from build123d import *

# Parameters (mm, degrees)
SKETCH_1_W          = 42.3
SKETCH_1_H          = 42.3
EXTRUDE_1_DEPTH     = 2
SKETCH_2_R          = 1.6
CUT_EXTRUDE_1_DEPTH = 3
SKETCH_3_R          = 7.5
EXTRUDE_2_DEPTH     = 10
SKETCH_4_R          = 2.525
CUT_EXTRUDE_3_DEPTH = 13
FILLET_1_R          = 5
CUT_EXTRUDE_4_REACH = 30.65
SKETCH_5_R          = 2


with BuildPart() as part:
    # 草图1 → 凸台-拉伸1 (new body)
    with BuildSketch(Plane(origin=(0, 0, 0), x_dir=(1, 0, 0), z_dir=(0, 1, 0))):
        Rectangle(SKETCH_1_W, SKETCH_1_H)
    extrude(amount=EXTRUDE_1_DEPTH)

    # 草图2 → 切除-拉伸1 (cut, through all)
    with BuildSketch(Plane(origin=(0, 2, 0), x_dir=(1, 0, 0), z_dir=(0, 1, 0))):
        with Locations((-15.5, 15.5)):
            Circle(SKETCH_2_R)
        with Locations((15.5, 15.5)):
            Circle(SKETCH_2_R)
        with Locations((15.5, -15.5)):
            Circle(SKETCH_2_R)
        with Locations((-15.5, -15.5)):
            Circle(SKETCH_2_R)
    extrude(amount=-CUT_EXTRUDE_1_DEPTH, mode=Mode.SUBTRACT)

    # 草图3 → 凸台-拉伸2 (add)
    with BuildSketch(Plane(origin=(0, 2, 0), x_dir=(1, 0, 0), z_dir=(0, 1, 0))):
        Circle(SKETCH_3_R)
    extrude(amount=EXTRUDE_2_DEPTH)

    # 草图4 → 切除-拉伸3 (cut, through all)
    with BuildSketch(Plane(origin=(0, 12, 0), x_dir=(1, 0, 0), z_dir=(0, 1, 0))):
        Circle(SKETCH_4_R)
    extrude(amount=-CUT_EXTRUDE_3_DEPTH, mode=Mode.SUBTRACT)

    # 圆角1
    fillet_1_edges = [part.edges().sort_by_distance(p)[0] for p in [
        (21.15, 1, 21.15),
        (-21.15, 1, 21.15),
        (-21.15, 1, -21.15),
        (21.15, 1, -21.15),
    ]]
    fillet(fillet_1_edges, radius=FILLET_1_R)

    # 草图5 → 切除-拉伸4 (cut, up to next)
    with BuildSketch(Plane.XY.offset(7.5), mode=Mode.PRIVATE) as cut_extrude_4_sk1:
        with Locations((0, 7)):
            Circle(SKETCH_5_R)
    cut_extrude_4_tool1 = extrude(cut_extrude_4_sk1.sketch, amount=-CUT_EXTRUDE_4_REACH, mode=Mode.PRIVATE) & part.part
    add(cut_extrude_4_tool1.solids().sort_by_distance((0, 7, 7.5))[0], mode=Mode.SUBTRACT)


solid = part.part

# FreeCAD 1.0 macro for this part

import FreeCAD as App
import Part
import Sketcher

V = App.Vector


def edges_at(feature, points):
    """Names of the edges that pass closest to the given points."""
    edges = feature.Shape.Edges
    near = lambda p: min(range(len(edges)), key=lambda i: edges[i].distToShape(Part.Vertex(*p))[0])
    return sorted({f"Edge{near(p) + 1}" for p in points})

doc = App.newDocument("Part")
body = doc.addObject("PartDesign::Body", "Body")

sketch1 = body.newObject("Sketcher::SketchObject", "Sketch")
sketch1.AttachmentSupport = (doc.getObject("XZ_Plane"), [""])
sketch1.MapMode = "FlatFace"
sketch1.addGeometry(Part.LineSegment(V(-21, -21, 0), V(-21, 21, 0)), False)
sketch1.addGeometry(Part.LineSegment(V(-21, 21, 0), V(21, 21, 0)), False)
sketch1.addGeometry(Part.LineSegment(V(21, 21, 0), V(21, -21, 0)), False)
sketch1.addGeometry(Part.LineSegment(V(21, -21, 0), V(-21, -21, 0)), False)
sketch1.addConstraint(Sketcher.Constraint("Coincident", 0, 2, 1, 1))
sketch1.addConstraint(Sketcher.Constraint("Coincident", 1, 2, 2, 1))
sketch1.addConstraint(Sketcher.Constraint("Coincident", 2, 2, 3, 1))
sketch1.addConstraint(Sketcher.Constraint("Coincident", 3, 2, 0, 1))
sketch1.addConstraint(Sketcher.Constraint("Vertical", 0))
sketch1.addConstraint(Sketcher.Constraint("Horizontal", 1))
sketch1.addConstraint(Sketcher.Constraint("Vertical", 2))
sketch1.addConstraint(Sketcher.Constraint("Horizontal", 3))
sketch1.addConstraint(Sketcher.Constraint("Symmetric", 0, 2, 2, 2, -1, 1))
sketch1.addConstraint(Sketcher.Constraint("Equal", 3, 0))
sketch1.addConstraint(Sketcher.Constraint("DistanceX", 1, 1, 1, 2, 42.3))
pad1 = body.newObject("PartDesign::Pad", "Pad")
pad1.Profile = sketch1
pad1.Length = 2
pad1.Reversed = True

sketch2 = body.newObject("Sketcher::SketchObject", "Sketch001")
sketch2.AttachmentSupport = (doc.getObject("XZ_Plane"), [""])
sketch2.MapMode = "FlatFace"
sketch2.AttachmentOffset = App.Placement(V(0, 0, -2), App.Rotation())
sketch2.addGeometry(Part.Circle(V(-15.5, -15.5, 0), V(0, 0, 1), 1.6), False)
sketch2.addGeometry(Part.Circle(V(15.5, -15.5, 0), V(0, 0, 1), 1.6), False)
sketch2.addGeometry(Part.Circle(V(15.5, 15.5, 0), V(0, 0, 1), 1.6), False)
sketch2.addGeometry(Part.Circle(V(-15.5, 15.5, 0), V(0, 0, 1), 1.6), False)
sketch2.addConstraint(Sketcher.Constraint("Equal", 0, 1))
sketch2.addConstraint(Sketcher.Constraint("Equal", 1, 2))
sketch2.addConstraint(Sketcher.Constraint("Equal", 2, 3))
sketch2.addConstraint(Sketcher.Constraint("Symmetric", 0, 3, 2, 3, -1, 1))
sketch2.addConstraint(Sketcher.Constraint("Symmetric", 1, 3, 3, 3, -1, 1))
sketch2.addConstraint(Sketcher.Constraint("Symmetric", 0, 3, 1, 3, -2))
sketch2.addConstraint(Sketcher.Constraint("Diameter", 0, 3.2))
sketch2.addConstraint(Sketcher.Constraint("DistanceX", 0, 3, 1, 3, 31.0))
sketch2.addConstraint(Sketcher.Constraint("DistanceY", 1, 3, 2, 3, 31.0))
pocket1 = body.newObject("PartDesign::Pocket", "Pocket")
pocket1.Profile = sketch2
pocket1.Type = "ThroughAll"
pocket1.Reversed = True

sketch3 = body.newObject("Sketcher::SketchObject", "Sketch002")
sketch3.AttachmentSupport = (doc.getObject("XZ_Plane"), [""])
sketch3.MapMode = "FlatFace"
sketch3.AttachmentOffset = App.Placement(V(0, 0, -2), App.Rotation())
sketch3.addGeometry(Part.Circle(V(0, 0, 0), V(0, 0, 1), 8), False)
sketch3.addConstraint(Sketcher.Constraint("Coincident", 0, 3, -1, 1))
sketch3.addConstraint(Sketcher.Constraint("Diameter", 0, 15.0))
pad2 = body.newObject("PartDesign::Pad", "Pad001")
pad2.Profile = sketch3
pad2.Length = 10
pad2.Reversed = True

sketch4 = body.newObject("Sketcher::SketchObject", "Sketch003")
sketch4.AttachmentSupport = (doc.getObject("XZ_Plane"), [""])
sketch4.MapMode = "FlatFace"
sketch4.AttachmentOffset = App.Placement(V(0, 0, -12), App.Rotation())
sketch4.addGeometry(Part.Circle(V(0, 0, 0), V(0, 0, 1), 2.5), False)
sketch4.addConstraint(Sketcher.Constraint("Coincident", 0, 3, -1, 1))
sketch4.addConstraint(Sketcher.Constraint("Diameter", 0, 5.05))
pocket2 = body.newObject("PartDesign::Pocket", "Pocket001")
pocket2.Profile = sketch4
pocket2.Type = "ThroughAll"
pocket2.Reversed = True
doc.recompute()

fillet = body.newObject("PartDesign::Fillet", "Fillet")
fillet.Base = (pocket2, edges_at(pocket2, [
    (21.15, 1, 21.15),
    (-21.15, 1, 21.15),
    (-21.15, 1, -21.15),
    (21.15, 1, -21.15),
]))
fillet.Radius = 5

sketch5 = body.newObject("Sketcher::SketchObject", "Sketch004")
sketch5.AttachmentSupport = (doc.getObject("XY_Plane"), [""])
sketch5.MapMode = "FlatFace"
sketch5.AttachmentOffset = App.Placement(V(0, 0, 7.5), App.Rotation())
sketch5.addGeometry(Part.Circle(V(0, 7, 0), V(0, 0, 1), 2), False)
sketch5.addConstraint(Sketcher.Constraint("PointOnObject", 0, 3, -2))
sketch5.addConstraint(Sketcher.Constraint("Diameter", 0, 4.0))
sketch5.addConstraint(Sketcher.Constraint("DistanceY", -1, 1, 0, 3, 7.0))
pocket3 = body.newObject("PartDesign::Pocket", "Pocket002")
pocket3.Profile = sketch5
pocket3.Type = "UpToFirst"

doc.recompute()
